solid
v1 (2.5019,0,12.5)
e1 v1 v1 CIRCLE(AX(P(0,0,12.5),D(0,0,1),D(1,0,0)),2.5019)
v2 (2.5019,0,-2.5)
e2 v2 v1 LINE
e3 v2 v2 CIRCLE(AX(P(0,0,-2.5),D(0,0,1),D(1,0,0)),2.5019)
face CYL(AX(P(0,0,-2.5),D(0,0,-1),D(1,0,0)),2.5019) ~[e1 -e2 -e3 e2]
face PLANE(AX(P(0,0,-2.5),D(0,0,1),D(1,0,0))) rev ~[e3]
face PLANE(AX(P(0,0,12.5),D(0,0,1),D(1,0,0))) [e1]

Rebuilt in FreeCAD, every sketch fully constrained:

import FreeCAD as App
import Part
import Sketcher
from FreeCAD import Vector

doc = App.newDocument("Part")
body = doc.addObject("PartDesign::Body", "Body")

# Sketch on XY plane
sketch1 = doc.addObject("Sketcher::SketchObject", "Sketch")
body.addObject(sketch1)
sketch1.AttachmentSupport = (doc.XY_Plane, [""])
sketch1.MapMode = "FlatFace"
sketch1.AttachmentOffset = App.Placement(Vector(0, 0, -2.5), App.Rotation())
sketch1.addGeometry(Part.Circle(Vector(0, 0, 0), Vector(0, 0, 1), 2.5), False)
sketch1.addConstraint(Sketcher.Constraint("Coincident", 0, 3, -1, 1))
sketch1.addConstraint(Sketcher.Constraint("Diameter", 0, 5.0038))
pad1 = doc.addObject("PartDesign::Pad", "Pad")
body.addObject(pad1)
pad1.Profile = sketch1
pad1.Length = 15

doc.recompute()
